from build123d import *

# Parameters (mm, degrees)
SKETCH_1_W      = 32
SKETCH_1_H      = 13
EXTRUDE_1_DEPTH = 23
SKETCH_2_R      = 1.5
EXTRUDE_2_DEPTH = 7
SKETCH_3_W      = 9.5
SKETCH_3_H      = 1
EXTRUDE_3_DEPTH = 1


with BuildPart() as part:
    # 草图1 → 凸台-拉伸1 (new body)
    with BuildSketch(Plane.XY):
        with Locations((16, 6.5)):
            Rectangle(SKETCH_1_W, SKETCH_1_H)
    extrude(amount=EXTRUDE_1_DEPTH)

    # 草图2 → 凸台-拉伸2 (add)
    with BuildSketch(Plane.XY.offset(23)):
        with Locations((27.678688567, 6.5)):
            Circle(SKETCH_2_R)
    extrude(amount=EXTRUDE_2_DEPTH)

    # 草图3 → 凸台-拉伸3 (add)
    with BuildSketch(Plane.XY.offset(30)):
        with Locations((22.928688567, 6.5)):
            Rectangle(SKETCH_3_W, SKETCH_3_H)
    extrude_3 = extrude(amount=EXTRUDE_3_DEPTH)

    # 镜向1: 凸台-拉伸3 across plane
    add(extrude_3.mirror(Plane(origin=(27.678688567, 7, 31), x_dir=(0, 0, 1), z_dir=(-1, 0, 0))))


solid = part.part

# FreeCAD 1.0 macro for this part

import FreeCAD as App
import Part
import Sketcher
Q = App.Units.Quantity

doc = App.newDocument("Part")
params = doc.addObject("Spreadsheet::Sheet", "Params")
for row, (alias, value) in enumerate([
    ("sketch1_width", "32 mm"),
    ("sketch1_height", "13 mm"),
    ("pad1_length", "23 mm"),
    ("sketch2_diameter", "3 mm"),
    ("pad2_length", "7 mm"),
    ("sketch3_height", "1 mm"),
    ("sketch3_width", "9.5 mm"),
    ("pad3_length", "1 mm"),
], start=1):
    params.set(f"A{row}", alias)
    params.set(f"B{row}", "=" + value)
    params.setAlias(f"B{row}", alias)

body = doc.addObject("PartDesign::Body", "Body")

# Sketch on XY plane
sketch1 = doc.addObject("Sketcher::SketchObject", "Sketch")
body.addObject(sketch1)
sketch1.AttachmentSupport = (doc.XY_Plane, [""])
sketch1.MapMode = "FlatFace"
sketch1.addGeometry([
    Part.LineSegment(App.Vector(0, 13, 0), App.Vector(0, 0, 0)),
    Part.LineSegment(App.Vector(0, 0, 0), App.Vector(32, 0, 0)),
    Part.LineSegment(App.Vector(32, 0, 0), App.Vector(32, 13, 0)),
    Part.LineSegment(App.Vector(32, 13, 0), App.Vector(0, 13, 0)),
], False)
sketch1.addConstraint([
    Sketcher.Constraint("Coincident", 0, 2, 1, 1),
    Sketcher.Constraint("Coincident", 1, 2, 2, 1),
    Sketcher.Constraint("Coincident", 2, 2, 3, 1),
    Sketcher.Constraint("Coincident", 3, 2, 0, 1),
    Sketcher.Constraint("Vertical", 0),
    Sketcher.Constraint("Horizontal", 1),
    Sketcher.Constraint("Vertical", 2),
    Sketcher.Constraint("Horizontal", 3),
    Sketcher.Constraint("Coincident", 0, 2, -1, 1),
    Sketcher.Constraint("DistanceX", 1, 1, 1, 2, Q("32 mm")),
    Sketcher.Constraint("DistanceY", 0, 2, 0, 1, Q("13 mm")),
])
sketch1.setExpression("Constraints[9]", "Params.sketch1_width")
sketch1.setExpression("Constraints[10]", "Params.sketch1_height")
pad1 = doc.addObject("PartDesign::Pad", "Pad")
body.addObject(pad1)
pad1.Profile = sketch1
pad1.setExpression("Length", "Params.pad1_length")

# Sketch on XY plane
sketch2 = doc.addObject("Sketcher::SketchObject", "Sketch001")
body.addObject(sketch2)
sketch2.AttachmentSupport = (doc.XY_Plane, [""])
sketch2.MapMode = "FlatFace"
sketch2.AttachmentOffset = App.Placement(App.Vector(0, 0, 23), App.Rotation())
sketch2.addGeometry(Part.Circle(App.Vector(27.7, 6.5, 0), App.Vector(0, 0, 1), 1.5), False)
sketch2.addConstraint([
    Sketcher.Constraint("Diameter", 0, Q("3 mm")),
    Sketcher.Constraint("DistanceY", -1, 1, 0, 3, Q("6.5 mm")),
    Sketcher.Constraint("DistanceX", -1, 1, 0, 3, Q("27.678689 mm")),
])
sketch2.setExpression("Constraints[0]", "Params.sketch2_diameter")
pad2 = doc.addObject("PartDesign::Pad", "Pad001")
body.addObject(pad2)
pad2.Profile = sketch2
pad2.setExpression("Length", "Params.pad2_length")

# Sketch on XY plane
sketch3 = doc.addObject("Sketcher::SketchObject", "Sketch002")
body.addObject(sketch3)
sketch3.AttachmentSupport = (doc.XY_Plane, [""])
sketch3.MapMode = "FlatFace"
sketch3.AttachmentOffset = App.Placement(App.Vector(0, 0, 30), App.Rotation())
sketch3.addGeometry([
    Part.LineSegment(App.Vector(18.2, 7, 0), App.Vector(18.2, 6, 0)),
    Part.LineSegment(App.Vector(18.2, 6, 0), App.Vector(27.7, 6, 0)),
    Part.LineSegment(App.Vector(27.7, 6, 0), App.Vector(27.7, 7, 0)),
    Part.LineSegment(App.Vector(27.7, 7, 0), App.Vector(18.2, 7, 0)),
], False)
sketch3.addConstraint([
    Sketcher.Constraint("Coincident", 0, 2, 1, 1),
    Sketcher.Constraint("Coincident", 1, 2, 2, 1),
    Sketcher.Constraint("Coincident", 2, 2, 3, 1),
    Sketcher.Constraint("Coincident", 3, 2, 0, 1),
    Sketcher.Constraint("Vertical", 0),
    Sketcher.Constraint("Horizontal", 1),
    Sketcher.Constraint("Vertical", 2),
    Sketcher.Constraint("Horizontal", 3),
    Sketcher.Constraint("DistanceY", 0, 2, 0, 1, Q("1 mm")),
    Sketcher.Constraint("DistanceX", 1, 1, 1, 2, Q("9.5 mm")),
    Sketcher.Constraint("DistanceY", -1, 1, 0, 2, Q("6 mm")),
    Sketcher.Constraint("DistanceX", -1, 1, 0, 2, Q("18.178689 mm")),
])
sketch3.setExpression("Constraints[8]", "Params.sketch3_height")
sketch3.setExpression("Constraints[9]", "Params.sketch3_width")
pad3 = doc.addObject("PartDesign::Pad", "Pad002")
body.addObject(pad3)
pad3.Profile = sketch3
pad3.setExpression("Length", "Params.pad3_length")
doc.recompute()

datumplane = doc.addObject("PartDesign::Plane", "DatumPlane")
body.addObject(datumplane)
datumplane.AttachmentSupport = (doc.YZ_Plane, [""])
datumplane.MapMode = "FlatFace"
datumplane.AttachmentOffset = App.Placement(App.Vector(0, 0, 27.678689), App.Rotation())
mirrored = doc.addObject("PartDesign::Mirrored", "Mirrored")
body.addObject(mirrored)
mirrored.Originals = [pad3]
mirrored.MirrorPlane = (datumplane, [""])
body.Tip = mirrored

doc.recompute()
